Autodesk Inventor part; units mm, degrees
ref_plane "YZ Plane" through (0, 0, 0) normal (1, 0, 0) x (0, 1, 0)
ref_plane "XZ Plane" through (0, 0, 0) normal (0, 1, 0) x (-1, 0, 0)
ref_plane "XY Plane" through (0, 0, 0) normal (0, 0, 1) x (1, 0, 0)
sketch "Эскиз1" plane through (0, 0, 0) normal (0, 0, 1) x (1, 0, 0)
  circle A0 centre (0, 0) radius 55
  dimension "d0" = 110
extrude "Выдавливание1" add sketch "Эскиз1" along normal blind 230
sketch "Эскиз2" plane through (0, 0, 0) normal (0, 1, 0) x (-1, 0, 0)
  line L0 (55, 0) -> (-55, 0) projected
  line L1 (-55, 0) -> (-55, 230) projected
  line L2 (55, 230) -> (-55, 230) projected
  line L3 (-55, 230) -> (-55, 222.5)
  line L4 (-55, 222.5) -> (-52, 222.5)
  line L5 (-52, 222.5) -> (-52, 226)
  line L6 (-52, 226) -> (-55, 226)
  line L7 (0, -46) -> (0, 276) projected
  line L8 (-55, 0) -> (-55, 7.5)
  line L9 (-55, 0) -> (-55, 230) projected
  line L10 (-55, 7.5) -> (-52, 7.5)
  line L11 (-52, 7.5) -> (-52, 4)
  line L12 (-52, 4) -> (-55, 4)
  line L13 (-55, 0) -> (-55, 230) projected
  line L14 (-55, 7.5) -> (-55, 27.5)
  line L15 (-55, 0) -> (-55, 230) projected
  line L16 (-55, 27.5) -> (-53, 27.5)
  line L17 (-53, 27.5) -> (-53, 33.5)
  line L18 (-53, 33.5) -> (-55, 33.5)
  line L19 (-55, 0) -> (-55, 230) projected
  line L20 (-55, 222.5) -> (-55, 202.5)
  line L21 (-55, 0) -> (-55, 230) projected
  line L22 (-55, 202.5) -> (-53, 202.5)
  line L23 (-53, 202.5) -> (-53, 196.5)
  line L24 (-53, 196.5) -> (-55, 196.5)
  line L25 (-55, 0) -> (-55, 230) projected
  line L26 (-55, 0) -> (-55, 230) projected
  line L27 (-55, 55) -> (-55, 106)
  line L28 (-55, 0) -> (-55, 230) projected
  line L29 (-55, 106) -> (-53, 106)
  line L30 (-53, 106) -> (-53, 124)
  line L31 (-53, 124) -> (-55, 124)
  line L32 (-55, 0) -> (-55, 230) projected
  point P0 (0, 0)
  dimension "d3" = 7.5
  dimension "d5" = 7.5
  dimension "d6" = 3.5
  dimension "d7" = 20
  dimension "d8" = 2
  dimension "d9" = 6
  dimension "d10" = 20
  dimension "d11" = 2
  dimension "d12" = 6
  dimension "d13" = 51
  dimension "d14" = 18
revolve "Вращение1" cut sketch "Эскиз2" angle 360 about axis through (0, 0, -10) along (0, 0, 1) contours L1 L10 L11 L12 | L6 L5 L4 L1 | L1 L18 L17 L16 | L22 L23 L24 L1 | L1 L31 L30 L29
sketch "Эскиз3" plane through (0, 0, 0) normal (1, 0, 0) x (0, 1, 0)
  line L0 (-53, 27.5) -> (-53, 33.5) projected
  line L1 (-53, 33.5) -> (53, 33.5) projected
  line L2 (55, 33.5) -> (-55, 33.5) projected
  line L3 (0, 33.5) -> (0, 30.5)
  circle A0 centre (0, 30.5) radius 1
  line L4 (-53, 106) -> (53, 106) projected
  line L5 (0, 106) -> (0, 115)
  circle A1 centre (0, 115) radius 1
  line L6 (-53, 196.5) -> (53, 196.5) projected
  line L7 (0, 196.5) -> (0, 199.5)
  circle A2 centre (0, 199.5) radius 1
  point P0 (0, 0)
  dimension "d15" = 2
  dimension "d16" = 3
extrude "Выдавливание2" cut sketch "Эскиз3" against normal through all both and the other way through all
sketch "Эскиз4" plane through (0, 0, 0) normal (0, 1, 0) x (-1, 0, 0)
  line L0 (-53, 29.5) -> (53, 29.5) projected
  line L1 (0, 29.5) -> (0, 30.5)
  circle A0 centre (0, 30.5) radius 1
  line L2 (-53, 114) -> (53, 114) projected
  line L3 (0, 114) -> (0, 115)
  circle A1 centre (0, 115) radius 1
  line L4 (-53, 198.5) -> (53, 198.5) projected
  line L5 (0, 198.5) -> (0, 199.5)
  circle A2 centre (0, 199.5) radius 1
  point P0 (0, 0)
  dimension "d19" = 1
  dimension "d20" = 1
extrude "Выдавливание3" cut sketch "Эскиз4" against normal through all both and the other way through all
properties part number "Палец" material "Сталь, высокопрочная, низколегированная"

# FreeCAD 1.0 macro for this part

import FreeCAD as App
import Part
import Sketcher

doc = App.newDocument("Part")
body = doc.addObject("PartDesign::Body", "Body")

# Sketch on XY plane
sketch1 = doc.addObject("Sketcher::SketchObject", "Sketch")
body.addObject(sketch1)
sketch1.AttachmentSupport = (doc.XY_Plane, [""])
sketch1.MapMode = "FlatFace"
sketch1.addGeometry(Part.Circle(App.Vector(0, 0, 0), App.Vector(0, 0, 1), 55), False)
sketch1.addConstraint([
    Sketcher.Constraint("Coincident", 0, 3, -1, 1),
    Sketcher.Constraint("Diameter", 0, 110.0),
])
pad1 = doc.addObject("PartDesign::Pad", "Pad")
body.addObject(pad1)
pad1.Profile = sketch1
pad1.Length = 230

# Sketch on XZ plane
sketch2 = doc.addObject("Sketcher::SketchObject", "Sketch001")
body.addObject(sketch2)
sketch2.AttachmentSupport = (doc.XZ_Plane, [""])
sketch2.MapMode = "FlatFace"
sketch2.addGeometry([
    Part.LineSegment(App.Vector(55, 7.5, 0), App.Vector(55, 4, 0)),  # 0
    Part.LineSegment(App.Vector(55, 4, 0), App.Vector(52, 4, 0)),  # 1
    Part.LineSegment(App.Vector(52, 4, 0), App.Vector(52, 7.5, 0)),  # 2
    Part.LineSegment(App.Vector(52, 7.5, 0), App.Vector(55, 7.5, 0)),  # 3
    Part.LineSegment(App.Vector(52, 226, 0), App.Vector(55, 226, 0)),  # 4
    Part.LineSegment(App.Vector(55, 226, 0), App.Vector(55, 222.5, 0)),  # 5
    Part.LineSegment(App.Vector(55, 222.5, 0), App.Vector(52, 222.5, 0)),  # 6
    Part.LineSegment(App.Vector(52, 222.5, 0), App.Vector(52, 226, 0)),  # 7
    Part.LineSegment(App.Vector(55, 33.5, 0), App.Vector(55, 27.5, 0)),  # 8
    Part.LineSegment(App.Vector(55, 27.5, 0), App.Vector(53, 27.5, 0)),  # 9
    Part.LineSegment(App.Vector(53, 27.5, 0), App.Vector(53, 33.5, 0)),  # 10
    Part.LineSegment(App.Vector(53, 33.5, 0), App.Vector(55, 33.5, 0)),  # 11
    Part.LineSegment(App.Vector(53, 202.5, 0), App.Vector(55, 202.5, 0)),  # 12
    Part.LineSegment(App.Vector(55, 202.5, 0), App.Vector(55, 196.5, 0)),  # 13
    Part.LineSegment(App.Vector(55, 196.5, 0), App.Vector(53, 196.5, 0)),  # 14
    Part.LineSegment(App.Vector(53, 196.5, 0), App.Vector(53, 202.5, 0)),  # 15
    Part.LineSegment(App.Vector(55, 124, 0), App.Vector(55, 106, 0)),  # 16
    Part.LineSegment(App.Vector(55, 106, 0), App.Vector(53, 106, 0)),  # 17
    Part.LineSegment(App.Vector(53, 106, 0), App.Vector(53, 124, 0)),  # 18
    Part.LineSegment(App.Vector(53, 124, 0), App.Vector(55, 124, 0)),  # 19
], False)
sketch2.addConstraint([
    Sketcher.Constraint("Coincident", 0, 2, 1, 1),
    Sketcher.Constraint("Coincident", 1, 2, 2, 1),
    Sketcher.Constraint("Coincident", 2, 2, 3, 1),
    Sketcher.Constraint("Coincident", 3, 2, 0, 1),
    Sketcher.Constraint("Coincident", 4, 2, 5, 1),
    Sketcher.Constraint("Coincident", 5, 2, 6, 1),
    Sketcher.Constraint("Coincident", 6, 2, 7, 1),
    Sketcher.Constraint("Coincident", 7, 2, 4, 1),
    Sketcher.Constraint("Coincident", 8, 2, 9, 1),
    Sketcher.Constraint("Coincident", 9, 2, 10, 1),
    Sketcher.Constraint("Coincident", 10, 2, 11, 1),
    Sketcher.Constraint("Coincident", 11, 2, 8, 1),
    Sketcher.Constraint("Coincident", 12, 2, 13, 1),
    Sketcher.Constraint("Coincident", 13, 2, 14, 1),
    Sketcher.Constraint("Coincident", 14, 2, 15, 1),
    Sketcher.Constraint("Coincident", 15, 2, 12, 1),
    Sketcher.Constraint("Coincident", 16, 2, 17, 1),
    Sketcher.Constraint("Coincident", 17, 2, 18, 1),
    Sketcher.Constraint("Coincident", 18, 2, 19, 1),
    Sketcher.Constraint("Coincident", 19, 2, 16, 1),
    Sketcher.Constraint("Vertical", 0),
    Sketcher.Constraint("Horizontal", 1),
    Sketcher.Constraint("Vertical", 2),
    Sketcher.Constraint("Horizontal", 3),
    Sketcher.Constraint("Horizontal", 4),
    Sketcher.Constraint("Vertical", 5),
    Sketcher.Constraint("Horizontal", 6),
    Sketcher.Constraint("Vertical", 7),
    Sketcher.Constraint("Vertical", 8),
    Sketcher.Constraint("Horizontal", 9),
    Sketcher.Constraint("Vertical", 10),
    Sketcher.Constraint("Horizontal", 11),
    Sketcher.Constraint("Horizontal", 12),
    Sketcher.Constraint("Vertical", 13),
    Sketcher.Constraint("Horizontal", 14),
    Sketcher.Constraint("Vertical", 15),
    Sketcher.Constraint("Vertical", 16),
    Sketcher.Constraint("Horizontal", 17),
    Sketcher.Constraint("Vertical", 18),
    Sketcher.Constraint("Horizontal", 19),
    Sketcher.Constraint("Vertical", 3, 2, 4, 2),
    Sketcher.Constraint("Vertical", 2, 2, 6, 2),
    Sketcher.Constraint("Vertical", 5, 2, 8, 2),
    Sketcher.Constraint("Vertical", 11, 2, 12, 2),
    Sketcher.Constraint("Vertical", 10, 2, 14, 2),
    Sketcher.Constraint("Vertical", 13, 2, 16, 2),
    Sketcher.Constraint("Vertical", 15, 2, 17, 2),
    Sketcher.Constraint("Equal", 2, 5),
    Sketcher.Constraint("Equal", 10, 13),
    Sketcher.Constraint("DistanceX", 9, 2, 9, 1, 2.0),
    Sketcher.Constraint("DistanceY", 8, 2, 8, 1, 6.0),
    Sketcher.Constraint("DistanceY", 16, 2, 16, 1, 18.0),
    Sketcher.Constraint("DistanceY", 0, 2, 0, 1, 3.5),
    Sketcher.Constraint("DistanceY", 3, 2, 8, 2, 20.0),
    Sketcher.Constraint("DistanceY", 12, 2, 5, 2, 20.0),
    Sketcher.Constraint("DistanceY", -1, 1, 2, 2, 7.5),
    Sketcher.Constraint("DistanceX", 1, 2, 1, 1, 3.0),
    Sketcher.Constraint("DistanceX", -1, 1, 0, 2, 55.0),
    Sketcher.Constraint("DistanceY", -1, 1, 4, 2, 226.0),
    Sketcher.Constraint("DistanceY", -1, 1, 16, 2, 106.0),
])
groove = doc.addObject("PartDesign::Groove", "Groove")
body.addObject(groove)
groove.Profile = sketch2
groove.ReferenceAxis = (sketch2, ["V_Axis"])
groove.Angle = 360

# Sketch on YZ plane
sketch3 = doc.addObject("Sketcher::SketchObject", "Sketch002")
body.addObject(sketch3)
sketch3.AttachmentSupport = (doc.YZ_Plane, [""])
sketch3.MapMode = "FlatFace"
sketch3.addGeometry([
    Part.Circle(App.Vector(0, 30.5, 0), App.Vector(0, 0, 1), 1),
    Part.Circle(App.Vector(0, 115, 0), App.Vector(0, 0, 1), 1),
    Part.Circle(App.Vector(0, 199.5, 0), App.Vector(0, 0, 1), 1),
], False)
sketch3.addConstraint([
    Sketcher.Constraint("Equal", 0, 1),
    Sketcher.Constraint("Equal", 1, 2),
    Sketcher.Constraint("PointOnObject", 0, 3, -2),
    Sketcher.Constraint("PointOnObject", 1, 3, -2),
    Sketcher.Constraint("PointOnObject", 2, 3, -2),
    Sketcher.Constraint("Diameter", 0, 2.0),
    Sketcher.Constraint("DistanceY", -1, 1, 1, 3, 115.0),
    Sketcher.Constraint("DistanceY", 0, 3, 2, 3, 169.0),
    Sketcher.Constraint("DistanceY", -1, 1, 0, 3, 30.5),
])
pocket1 = doc.addObject("PartDesign::Pocket", "Pocket")
body.addObject(pocket1)
pocket1.Profile = sketch3
pocket1.Type = "ThroughAll"
pocket1.Midplane = True

# Sketch on XZ plane
sketch4 = doc.addObject("Sketcher::SketchObject", "Sketch003")
body.addObject(sketch4)
sketch4.AttachmentSupport = (doc.XZ_Plane, [""])
sketch4.MapMode = "FlatFace"
sketch4.addGeometry([
    Part.Circle(App.Vector(0, 30.5, 0), App.Vector(0, 0, 1), 1),
    Part.Circle(App.Vector(0, 115, 0), App.Vector(0, 0, 1), 1),
    Part.Circle(App.Vector(0, 199.5, 0), App.Vector(0, 0, 1), 1),
], False)
sketch4.addConstraint([
    Sketcher.Constraint("Equal", 0, 1),
    Sketcher.Constraint("Equal", 1, 2),
    Sketcher.Constraint("PointOnObject", 0, 3, -2),
    Sketcher.Constraint("PointOnObject", 1, 3, -2),
    Sketcher.Constraint("PointOnObject", 2, 3, -2),
    Sketcher.Constraint("Diameter", 0, 2.0),
    Sketcher.Constraint("DistanceY", -1, 1, 1, 3, 115.0),
    Sketcher.Constraint("DistanceY", 0, 3, 2, 3, 169.0),
    Sketcher.Constraint("DistanceY", -1, 1, 0, 3, 30.5),
])
pocket2 = doc.addObject("PartDesign::Pocket", "Pocket001")
body.addObject(pocket2)
pocket2.Profile = sketch4
pocket2.Type = "ThroughAll"
pocket2.Midplane = True

doc.recompute()
